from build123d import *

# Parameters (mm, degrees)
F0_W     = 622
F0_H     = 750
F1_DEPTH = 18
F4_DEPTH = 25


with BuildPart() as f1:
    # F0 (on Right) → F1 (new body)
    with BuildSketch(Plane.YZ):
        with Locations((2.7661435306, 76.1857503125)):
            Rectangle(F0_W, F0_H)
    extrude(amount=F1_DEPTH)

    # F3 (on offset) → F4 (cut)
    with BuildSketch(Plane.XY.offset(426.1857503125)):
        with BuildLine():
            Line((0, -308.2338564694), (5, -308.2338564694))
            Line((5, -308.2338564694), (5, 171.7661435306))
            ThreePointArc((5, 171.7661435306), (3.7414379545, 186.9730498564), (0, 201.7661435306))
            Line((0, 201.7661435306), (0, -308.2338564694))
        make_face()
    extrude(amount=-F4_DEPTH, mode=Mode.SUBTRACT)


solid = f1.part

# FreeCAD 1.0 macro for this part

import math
import FreeCAD as App
import Part
import Sketcher
Q = App.Units.Quantity


def add_polygon(sketch, points):
    """Adds a closed chain of lines whose ends are joined by coincident constraints."""
    first, n = sketch.GeometryCount, len(points)
    for a, b in zip(points, points[1:] + points[:1]):
        sketch.addGeometry(Part.LineSegment(App.Vector(*a, 0), App.Vector(*b, 0)), False)
    for i in range(n):
        sketch.addConstraint(Sketcher.Constraint("Coincident", first + i, 2, first + (i + 1) % n, 1))

doc = App.newDocument("Part")
params = doc.addObject("Spreadsheet::Sheet", "Params")
for row, (alias, value) in enumerate([
    ("sketch1_width", "622 mm"),
    ("sketch1_height", "750 mm"),
    ("pad1_length", "18 mm"),
    ("sketch2_radius", "92.5 mm"),
    ("sketch2_width", "5 mm"),
    ("sketch2_height", "480 mm"),
    ("pocket1_length", "25 mm"),
], start=1):
    params.set(f"A{row}", alias)
    params.set(f"B{row}", "=" + value)
    params.setAlias(f"B{row}", alias)

body = doc.addObject("PartDesign::Body", "Body")

sketch1 = doc.addObject("Sketcher::SketchObject", "Sketch")
body.addObject(sketch1)
sketch1.AttachmentSupport = (doc.YZ_Plane, [""])
sketch1.MapMode = "FlatFace"
add_polygon(sketch1, [(-308, 451), (-308, -299), (314, -299), (314, 451)])
sketch1.addConstraint([
    Sketcher.Constraint("Vertical", 0),
    Sketcher.Constraint("Horizontal", 1),
    Sketcher.Constraint("Vertical", 2),
    Sketcher.Constraint("Horizontal", 3),
    Sketcher.Constraint("DistanceX", 1, 1, 1, 2, Q("622 mm")),
    Sketcher.Constraint("DistanceY", 0, 2, 0, 1, Q("750 mm")),
    Sketcher.Constraint("DistanceY", 0, 2, -1, 1, Q("298.81425 mm")),
    Sketcher.Constraint("DistanceX", 0, 2, -1, 1, Q("308.233856 mm")),
])
sketch1.setExpression("Constraints[8]", "Params.sketch1_width")
sketch1.setExpression("Constraints[9]", "Params.sketch1_height")
pad1 = doc.addObject("PartDesign::Pad", "Pad")
body.addObject(pad1)
pad1.Profile = sketch1
pad1.setExpression("Length", "Params.pad1_length")

sketch2 = doc.addObject("Sketcher::SketchObject", "Sketch001")
body.addObject(sketch2)
sketch2.AttachmentSupport = (doc.XY_Plane, [""])
sketch2.MapMode = "FlatFace"
sketch2.AttachmentOffset = App.Placement(App.Vector(0, 0, 426.18575), App.Rotation())
sketch2.addGeometry([
    Part.LineSegment(App.Vector(0, -308, 0), App.Vector(5, -308, 0)),
    Part.LineSegment(App.Vector(5, -308, 0), App.Vector(5, 172, 0)),
    Part.ArcOfCircle(Part.Circle(App.Vector(-87, 172, 0), App.Vector(0, 0, 1), 92), math.radians(0), math.radians(18.92)),
    Part.LineSegment(App.Vector(0, 202, 0), App.Vector(0, -308, 0)),
], False)
sketch2.addConstraint([
    Sketcher.Constraint("Coincident", 0, 2, 1, 1),
    Sketcher.Constraint("Tangent", 1, 2, 2, 1),
    Sketcher.Constraint("Coincident", 2, 2, 3, 1),
    Sketcher.Constraint("Coincident", 3, 2, 0, 1),
    Sketcher.Constraint("Horizontal", 0),
    Sketcher.Constraint("Vertical", 1),
    Sketcher.Constraint("Vertical", 3),
    Sketcher.Constraint("PointOnObject", 2, 2, -2),
    Sketcher.Constraint("Radius", 2, Q("92.5 mm")),
    Sketcher.Constraint("DistanceX", 0, 1, 0, 2, Q("5 mm")),
    Sketcher.Constraint("DistanceY", 1, 1, 1, 2, Q("480 mm")),
    Sketcher.Constraint("DistanceY", -1, 1, 2, 3, Q("171.766144 mm")),
])
sketch2.setExpression("Constraints[8]", "Params.sketch2_radius")
sketch2.setExpression("Constraints[9]", "Params.sketch2_width")
sketch2.setExpression("Constraints[10]", "Params.sketch2_height")
pocket1 = doc.addObject("PartDesign::Pocket", "Pocket")
body.addObject(pocket1)
pocket1.Profile = sketch2
pocket1.setExpression("Length", "Params.pocket1_length")

doc.recompute()
